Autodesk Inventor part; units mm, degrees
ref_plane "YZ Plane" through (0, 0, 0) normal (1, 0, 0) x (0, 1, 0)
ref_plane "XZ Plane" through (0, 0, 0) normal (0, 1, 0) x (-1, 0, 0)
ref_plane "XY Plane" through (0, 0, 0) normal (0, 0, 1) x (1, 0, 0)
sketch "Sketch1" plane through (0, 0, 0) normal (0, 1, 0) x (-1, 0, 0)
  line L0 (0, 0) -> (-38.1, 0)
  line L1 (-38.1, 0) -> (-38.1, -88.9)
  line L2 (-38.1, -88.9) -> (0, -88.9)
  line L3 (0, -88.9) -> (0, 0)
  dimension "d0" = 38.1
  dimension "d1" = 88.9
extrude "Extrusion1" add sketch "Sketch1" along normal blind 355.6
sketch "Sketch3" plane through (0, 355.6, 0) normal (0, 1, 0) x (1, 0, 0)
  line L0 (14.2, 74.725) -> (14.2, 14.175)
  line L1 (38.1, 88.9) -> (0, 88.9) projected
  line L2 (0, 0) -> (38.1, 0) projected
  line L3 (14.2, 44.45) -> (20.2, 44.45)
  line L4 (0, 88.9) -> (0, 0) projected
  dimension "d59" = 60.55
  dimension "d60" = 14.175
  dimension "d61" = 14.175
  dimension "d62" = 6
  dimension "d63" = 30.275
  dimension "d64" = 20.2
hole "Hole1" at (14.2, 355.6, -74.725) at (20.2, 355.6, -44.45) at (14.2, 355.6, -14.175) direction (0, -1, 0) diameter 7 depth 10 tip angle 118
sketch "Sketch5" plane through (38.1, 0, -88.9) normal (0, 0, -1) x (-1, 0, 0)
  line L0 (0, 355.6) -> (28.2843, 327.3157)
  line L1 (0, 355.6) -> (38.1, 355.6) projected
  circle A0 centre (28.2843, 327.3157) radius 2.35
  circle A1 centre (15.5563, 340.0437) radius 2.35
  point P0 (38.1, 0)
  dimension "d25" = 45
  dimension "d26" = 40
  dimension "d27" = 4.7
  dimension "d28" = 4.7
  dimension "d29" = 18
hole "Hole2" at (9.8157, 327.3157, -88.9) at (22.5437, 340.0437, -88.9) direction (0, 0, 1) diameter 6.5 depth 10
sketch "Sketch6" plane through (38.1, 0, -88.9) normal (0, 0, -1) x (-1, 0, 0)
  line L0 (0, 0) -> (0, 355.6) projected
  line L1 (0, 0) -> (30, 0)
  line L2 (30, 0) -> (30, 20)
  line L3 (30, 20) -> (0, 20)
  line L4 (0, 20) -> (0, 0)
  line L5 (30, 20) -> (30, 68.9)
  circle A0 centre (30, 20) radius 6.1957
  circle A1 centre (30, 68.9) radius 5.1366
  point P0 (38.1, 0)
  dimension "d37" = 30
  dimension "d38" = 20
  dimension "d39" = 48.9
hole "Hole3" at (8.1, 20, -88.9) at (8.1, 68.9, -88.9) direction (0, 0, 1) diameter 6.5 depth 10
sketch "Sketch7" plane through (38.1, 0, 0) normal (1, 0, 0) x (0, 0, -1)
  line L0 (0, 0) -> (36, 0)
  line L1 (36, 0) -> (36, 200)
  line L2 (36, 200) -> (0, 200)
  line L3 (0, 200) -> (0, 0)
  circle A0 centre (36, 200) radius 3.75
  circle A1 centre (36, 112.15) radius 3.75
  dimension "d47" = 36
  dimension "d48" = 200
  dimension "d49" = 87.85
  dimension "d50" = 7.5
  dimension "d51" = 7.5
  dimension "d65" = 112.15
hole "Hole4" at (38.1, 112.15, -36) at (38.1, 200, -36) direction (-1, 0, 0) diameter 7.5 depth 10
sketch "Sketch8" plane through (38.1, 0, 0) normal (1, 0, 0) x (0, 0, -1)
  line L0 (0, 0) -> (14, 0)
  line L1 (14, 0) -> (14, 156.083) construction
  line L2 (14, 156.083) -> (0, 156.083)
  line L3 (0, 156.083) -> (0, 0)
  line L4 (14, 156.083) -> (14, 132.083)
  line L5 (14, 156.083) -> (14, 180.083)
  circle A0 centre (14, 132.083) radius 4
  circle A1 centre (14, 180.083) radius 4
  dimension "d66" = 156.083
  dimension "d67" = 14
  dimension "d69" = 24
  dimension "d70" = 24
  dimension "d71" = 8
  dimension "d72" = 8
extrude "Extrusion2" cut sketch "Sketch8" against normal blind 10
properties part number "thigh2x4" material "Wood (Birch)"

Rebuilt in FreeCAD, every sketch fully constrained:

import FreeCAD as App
import Part
import Sketcher

V = App.Vector
Q = App.Units.Quantity

doc = App.newDocument("Part")
body = doc.addObject("PartDesign::Body", "Body")

sketch1 = body.newObject("Sketcher::SketchObject", "Sketch")
sketch1.AttachmentSupport = (doc.getObject("XZ_Plane"), [""])
sketch1.MapMode = "FlatFace"
sketch1.addGeometry([
    Part.LineSegment(V(0, -89, 0), V(0, 0, 0)),
    Part.LineSegment(V(0, 0, 0), V(38, 0, 0)),
    Part.LineSegment(V(38, 0, 0), V(38, -89, 0)),
    Part.LineSegment(V(38, -89, 0), V(0, -89, 0)),
], False)
sketch1.addConstraint([
    Sketcher.Constraint("Coincident", 0, 2, 1, 1),
    Sketcher.Constraint("Coincident", 1, 2, 2, 1),
    Sketcher.Constraint("Coincident", 2, 2, 3, 1),
    Sketcher.Constraint("Coincident", 3, 2, 0, 1),
    Sketcher.Constraint("Vertical", 0),
    Sketcher.Constraint("Horizontal", 1),
    Sketcher.Constraint("Vertical", 2),
    Sketcher.Constraint("Horizontal", 3),
    Sketcher.Constraint("Coincident", 0, 2, -1, 1),
    Sketcher.Constraint("DistanceX", 1, 1, 1, 2, Q("1.5 in")),
    Sketcher.Constraint("DistanceY", 0, 1, 0, 2, Q("3.5 in")),
])
pad1 = body.newObject("PartDesign::Pad", "Pad")
pad1.Profile = sketch1
pad1.Length = Q("14 in")
pad1.Reversed = True

sketch2 = body.newObject("Sketcher::SketchObject", "Sketch001")
sketch2.AttachmentSupport = (doc.getObject("XZ_Plane"), [""])
sketch2.MapMode = "FlatFace"
sketch2.AttachmentOffset = App.Placement(V(0, 0, -14 * 25.4), App.Rotation())
sketch2.addGeometry([
    Part.Circle(V(14.2, -74.7, 0), V(0, 0, 1), 3.5),
    Part.Circle(V(20.2, -44.5, 0), V(0, 0, 1), 3.5),
    Part.Circle(V(14.2, -14.2, 0), V(0, 0, 1), 3.5),
], False)
sketch2.addConstraint([
    Sketcher.Constraint("Equal", 0, 1),
    Sketcher.Constraint("Equal", 1, 2),
    Sketcher.Constraint("Vertical", 0, 3, 2, 3),
    Sketcher.Constraint("Diameter", 0, Q("0.2756 in")),
    Sketcher.Constraint("DistanceY", 1, 3, -1, 1, Q("1.75 in")),
    Sketcher.Constraint("DistanceX", -1, 1, 0, 3, 14.2),
    Sketcher.Constraint("DistanceY", 0, 3, -1, 1, 74.725),
    Sketcher.Constraint("DistanceX", -1, 1, 1, 3, 20.2),
    Sketcher.Constraint("DistanceY", 2, 3, -1, 1, 14.175),
])
doc.recompute()
hole = body.newObject("PartDesign::Hole", "Hole")
hole.Profile = sketch2
hole.ThreadType = "None"
hole.Diameter = Q("0.2755906 in")
hole.DepthType = "Dimension"
hole.Depth = Q("0.3937008 in")
hole.DrillPoint = "Angled"
hole.DrillPointAngle = 118
hole.Reversed = True

sketch3 = body.newObject("Sketcher::SketchObject", "Sketch002")
sketch3.AttachmentSupport = (doc.getObject("XY_Plane"), [""])
sketch3.MapMode = "FlatFace"
sketch3.AttachmentOffset = App.Placement(V(0, 0, -3.5 * 25.4), App.Rotation())
sketch3.addGeometry([
    Part.Circle(V(9.8, 327.3, 0), V(0, 0, 1), 3.2),
    Part.Circle(V(22.5, 340, 0), V(0, 0, 1), 3.2),
], False)
sketch3.addConstraint([
    Sketcher.Constraint("Equal", 0, 1),
    Sketcher.Constraint("Diameter", 0, Q("0.2559 in")),
    Sketcher.Constraint("DistanceX", 0, 3, 1, 3, Q("0.5011 in")),
    Sketcher.Constraint("DistanceY", 0, 3, 1, 3, Q("0.5011 in")),
    Sketcher.Constraint("DistanceX", -1, 1, 0, 3, 9.8157),
    Sketcher.Constraint("DistanceY", -1, 1, 0, 3, 327.3157),
])
doc.recompute()
hole2 = body.newObject("PartDesign::Hole", "Hole001")
hole2.Profile = sketch3
hole2.ThreadType = "None"
hole2.Diameter = Q("0.2559055 in")
hole2.DepthType = "Dimension"
hole2.Depth = Q("0.3937008 in")
hole2.DrillPoint = "Flat"
hole2.Reversed = True

sketch4 = body.newObject("Sketcher::SketchObject", "Sketch003")
sketch4.AttachmentSupport = (doc.getObject("XY_Plane"), [""])
sketch4.MapMode = "FlatFace"
sketch4.AttachmentOffset = App.Placement(V(0, 0, -3.5 * 25.4), App.Rotation())
sketch4.addGeometry([
    Part.Circle(V(8.1, 20, 0), V(0, 0, 1), 3.2),
    Part.Circle(V(8.1, 68.9, 0), V(0, 0, 1), 3.2),
], False)
sketch4.addConstraint([
    Sketcher.Constraint("Equal", 0, 1),
    Sketcher.Constraint("Vertical", 0, 3, 1, 3),
    Sketcher.Constraint("Diameter", 0, Q("0.2559 in")),
    Sketcher.Constraint("DistanceX", -1, 1, 0, 3, Q("0.3189 in")),
    Sketcher.Constraint("DistanceY", -1, 1, 0, 3, Q("0.7874 in")),
    Sketcher.Constraint("DistanceY", -1, 1, 1, 3, Q("2.7126 in")),
])
doc.recompute()
hole3 = body.newObject("PartDesign::Hole", "Hole002")
hole3.Profile = sketch4
hole3.ThreadType = "None"
hole3.Diameter = Q("0.2559055 in")
hole3.DepthType = "Dimension"
hole3.Depth = Q("0.3937008 in")
hole3.DrillPoint = "Flat"
hole3.Reversed = True

sketch5 = body.newObject("Sketcher::SketchObject", "Sketch004")
sketch5.AttachmentSupport = (doc.getObject("YZ_Plane"), [""])
sketch5.MapMode = "FlatFace"
sketch5.AttachmentOffset = App.Placement(V(0, 0, 1.5 * 25.4), App.Rotation())
sketch5.addGeometry([
    Part.Circle(V(112.2, -36, 0), V(0, 0, 1), 3.8),
    Part.Circle(V(200, -36, 0), V(0, 0, 1), 3.8),
], False)
sketch5.addConstraint([
    Sketcher.Constraint("Equal", 0, 1),
    Sketcher.Constraint("Horizontal", 0, 3, 1, 3),
    Sketcher.Constraint("Diameter", 0, 7.5),
    Sketcher.Constraint("DistanceX", -1, 1, 0, 3, 112.15),
    Sketcher.Constraint("DistanceY", 0, 3, -1, 1, 36.0),
    Sketcher.Constraint("DistanceX", -1, 1, 1, 3, 200.0),
])
doc.recompute()
hole4 = body.newObject("PartDesign::Hole", "Hole003")
hole4.Profile = sketch5
hole4.ThreadType = "None"
hole4.Diameter = 7.5
hole4.DepthType = "Dimension"
hole4.Depth = Q("0.3937008 in")
hole4.DrillPoint = "Flat"

sketch6 = body.newObject("Sketcher::SketchObject", "Sketch005")
sketch6.AttachmentSupport = (doc.getObject("YZ_Plane"), [""])
sketch6.MapMode = "FlatFace"
sketch6.AttachmentOffset = App.Placement(V(0, 0, 1.5 * 25.4), App.Rotation())
sketch6.addGeometry([
    Part.Circle(V(132.1, -14, 0), V(0, 0, 1), 4),
    Part.Circle(V(180.1, -14, 0), V(0, 0, 1), 4),
], False)
sketch6.addConstraint([
    Sketcher.Constraint("Equal", 0, 1),
    Sketcher.Constraint("Horizontal", 0, 3, 1, 3),
    Sketcher.Constraint("Diameter", 0, 8.0),
    Sketcher.Constraint("DistanceY", 0, 3, -1, 1, 14.0),
    Sketcher.Constraint("DistanceX", -1, 1, 0, 3, 132.083),
    Sketcher.Constraint("DistanceX", -1, 1, 1, 3, 180.083),
])
pocket1 = body.newObject("PartDesign::Pocket", "Pocket")
pocket1.Profile = sketch6
pocket1.Length = Q("0.3937008 in")

doc.recompute()
